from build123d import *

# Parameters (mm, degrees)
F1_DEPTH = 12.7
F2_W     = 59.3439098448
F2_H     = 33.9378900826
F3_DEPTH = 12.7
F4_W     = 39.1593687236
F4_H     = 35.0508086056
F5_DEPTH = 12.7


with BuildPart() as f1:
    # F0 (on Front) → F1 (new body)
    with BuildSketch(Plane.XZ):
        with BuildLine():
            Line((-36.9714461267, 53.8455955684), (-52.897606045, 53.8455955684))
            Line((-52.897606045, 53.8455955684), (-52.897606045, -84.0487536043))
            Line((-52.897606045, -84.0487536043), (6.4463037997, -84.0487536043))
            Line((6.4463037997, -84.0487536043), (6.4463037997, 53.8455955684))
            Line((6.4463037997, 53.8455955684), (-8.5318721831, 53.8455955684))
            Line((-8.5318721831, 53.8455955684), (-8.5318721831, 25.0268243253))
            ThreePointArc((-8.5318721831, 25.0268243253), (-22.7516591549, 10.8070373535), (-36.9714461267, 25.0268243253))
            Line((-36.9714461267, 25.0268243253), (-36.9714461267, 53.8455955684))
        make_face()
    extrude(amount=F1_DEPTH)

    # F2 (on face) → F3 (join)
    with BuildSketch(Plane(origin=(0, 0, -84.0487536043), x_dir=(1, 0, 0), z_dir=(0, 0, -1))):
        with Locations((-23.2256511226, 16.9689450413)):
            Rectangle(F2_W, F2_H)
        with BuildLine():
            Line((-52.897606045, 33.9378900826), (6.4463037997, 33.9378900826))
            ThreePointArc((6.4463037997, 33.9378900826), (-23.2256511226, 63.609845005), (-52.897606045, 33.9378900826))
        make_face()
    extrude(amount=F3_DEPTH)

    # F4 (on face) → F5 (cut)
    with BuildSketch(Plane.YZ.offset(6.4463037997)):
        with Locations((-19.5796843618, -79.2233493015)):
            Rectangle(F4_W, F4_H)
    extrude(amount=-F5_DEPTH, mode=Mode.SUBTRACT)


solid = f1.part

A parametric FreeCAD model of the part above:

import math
import FreeCAD as App
import Part
import Sketcher
from FreeCAD import Vector
Q = App.Units.Quantity

doc = App.newDocument("Part")
body = doc.addObject("PartDesign::Body", "Body")

# Sketch on XZ plane
sketch1 = body.newObject("Sketcher::SketchObject", "Sketch")
sketch1.AttachmentSupport = (doc.getObject("XZ_Plane"), [""])
sketch1.MapMode = "FlatFace"
sketch1.addGeometry(Part.LineSegment(Vector(-37, 54, 0), Vector(-53, 54, 0)), False)
sketch1.addGeometry(Part.LineSegment(Vector(-53, 54, 0), Vector(-53, -84, 0)), False)
sketch1.addGeometry(Part.LineSegment(Vector(-53, -84, 0), Vector(6, -84, 0)), False)
sketch1.addGeometry(Part.LineSegment(Vector(6, -84, 0), Vector(6, 54, 0)), False)
sketch1.addGeometry(Part.LineSegment(Vector(6, 54, 0), Vector(-9, 54, 0)), False)
sketch1.addGeometry(Part.LineSegment(Vector(-9, 54, 0), Vector(-9, 25, 0)), False)
sketch1.addGeometry(Part.ArcOfCircle(Part.Circle(Vector(-23, 25, 0), Vector(0, 0, 1), 14), math.radians(180), math.radians(360)), False)
sketch1.addGeometry(Part.LineSegment(Vector(-37, 25, 0), Vector(-37, 54, 0)), False)
sketch1.addConstraint(Sketcher.Constraint("Coincident", 0, 2, 1, 1))
sketch1.addConstraint(Sketcher.Constraint("Coincident", 1, 2, 2, 1))
sketch1.addConstraint(Sketcher.Constraint("Coincident", 2, 2, 3, 1))
sketch1.addConstraint(Sketcher.Constraint("Coincident", 3, 2, 4, 1))
sketch1.addConstraint(Sketcher.Constraint("Coincident", 4, 2, 5, 1))
sketch1.addConstraint(Sketcher.Constraint("Tangent", 5, 2, 6, 2))
sketch1.addConstraint(Sketcher.Constraint("Tangent", 6, 1, 7, 1))
sketch1.addConstraint(Sketcher.Constraint("Coincident", 7, 2, 0, 1))
sketch1.addConstraint(Sketcher.Constraint("Horizontal", 0))
sketch1.addConstraint(Sketcher.Constraint("Vertical", 1))
sketch1.addConstraint(Sketcher.Constraint("Horizontal", 2))
sketch1.addConstraint(Sketcher.Constraint("Vertical", 3))
sketch1.addConstraint(Sketcher.Constraint("Horizontal", 4))
sketch1.addConstraint(Sketcher.Constraint("Vertical", 5))
sketch1.addConstraint(Sketcher.Constraint("Vertical", 7))
sketch1.addConstraint(Sketcher.Constraint("Horizontal", 0, 2, 3, 2))
sketch1.addConstraint(Sketcher.Constraint("Radius", 6, 14.219787))
sketch1.addConstraint(Sketcher.Constraint("DistanceX", 0, 2, 0, 1, 15.92616))
sketch1.addConstraint(Sketcher.Constraint("DistanceX", 2, 1, 2, 2, 59.34391))
sketch1.addConstraint(Sketcher.Constraint("DistanceY", 1, 2, 1, 1, 137.894349))
sketch1.addConstraint(Sketcher.Constraint("DistanceY", 5, 2, 5, 1, 28.818771))
sketch1.addConstraint(Sketcher.Constraint("DistanceX", 6, 3, -1, 1, 22.751659))
sketch1.addConstraint(Sketcher.Constraint("DistanceY", -1, 1, 6, 3, 25.026824))
pad1 = body.newObject("PartDesign::Pad", "Pad")
pad1.Profile = sketch1
pad1.Length = Q("0.5 in")

# Sketch on XY plane
sketch2 = body.newObject("Sketcher::SketchObject", "Sketch001")
sketch2.AttachmentSupport = (doc.getObject("XY_Plane"), [""])
sketch2.MapMode = "FlatFace"
sketch2.AttachmentOffset = App.Placement(Vector(0, 0, -84.048754), App.Rotation())
sketch2.addGeometry(Part.LineSegment(Vector(-53, -34, 0), Vector(-53, 0, 0)), False)
sketch2.addGeometry(Part.LineSegment(Vector(-53, 0, 0), Vector(6, 0, 0)), False)
sketch2.addGeometry(Part.LineSegment(Vector(6, 0, 0), Vector(6, -34, 0)), False)
sketch2.addGeometry(Part.ArcOfCircle(Part.Circle(Vector(-23, -34, 0), Vector(0, 0, 1), 30), math.radians(180), math.radians(360)), False)
sketch2.addConstraint(Sketcher.Constraint("Coincident", 0, 2, 1, 1))
sketch2.addConstraint(Sketcher.Constraint("Coincident", 1, 2, 2, 1))
sketch2.addConstraint(Sketcher.Constraint("Tangent", 2, 2, 3, 2))
sketch2.addConstraint(Sketcher.Constraint("Tangent", 3, 1, 0, 1))
sketch2.addConstraint(Sketcher.Constraint("Vertical", 0))
sketch2.addConstraint(Sketcher.Constraint("Horizontal", 1))
sketch2.addConstraint(Sketcher.Constraint("Vertical", 2))
sketch2.addConstraint(Sketcher.Constraint("PointOnObject", 0, 2, -1))
sketch2.addConstraint(Sketcher.Constraint("Radius", 3, 29.671955))
sketch2.addConstraint(Sketcher.Constraint("DistanceY", 0, 1, 0, 2, 33.93789))
sketch2.addConstraint(Sketcher.Constraint("DistanceX", 3, 3, -1, 1, 23.225651))
pad2 = body.newObject("PartDesign::Pad", "Pad001")
pad2.Profile = sketch2
pad2.Length = Q("0.5 in")
pad2.Reversed = True

# Sketch on YZ plane
sketch3 = body.newObject("Sketcher::SketchObject", "Sketch002")
sketch3.AttachmentSupport = (doc.getObject("YZ_Plane"), [""])
sketch3.MapMode = "FlatFace"
sketch3.AttachmentOffset = App.Placement(Vector(0, 0, 6.446304), App.Rotation())
sketch3.addGeometry(Part.LineSegment(Vector(-39, -62, 0), Vector(-39, -97, 0)), False)
sketch3.addGeometry(Part.LineSegment(Vector(-39, -97, 0), Vector(0, -97, 0)), False)
sketch3.addGeometry(Part.LineSegment(Vector(0, -97, 0), Vector(0, -62, 0)), False)
sketch3.addGeometry(Part.LineSegment(Vector(0, -62, 0), Vector(-39, -62, 0)), False)
sketch3.addConstraint(Sketcher.Constraint("Coincident", 0, 2, 1, 1))
sketch3.addConstraint(Sketcher.Constraint("Coincident", 1, 2, 2, 1))
sketch3.addConstraint(Sketcher.Constraint("Coincident", 2, 2, 3, 1))
sketch3.addConstraint(Sketcher.Constraint("Coincident", 3, 2, 0, 1))
sketch3.addConstraint(Sketcher.Constraint("Vertical", 0))
sketch3.addConstraint(Sketcher.Constraint("Horizontal", 1))
sketch3.addConstraint(Sketcher.Constraint("Vertical", 2))
sketch3.addConstraint(Sketcher.Constraint("Horizontal", 3))
sketch3.addConstraint(Sketcher.Constraint("PointOnObject", 1, 2, -2))
sketch3.addConstraint(Sketcher.Constraint("DistanceX", 1, 1, 1, 2, 39.159369))
sketch3.addConstraint(Sketcher.Constraint("DistanceY", 0, 2, 0, 1, 35.050809))
sketch3.addConstraint(Sketcher.Constraint("DistanceY", 0, 2, -1, 1, 96.748754))
pocket1 = body.newObject("PartDesign::Pocket", "Pocket")
pocket1.Profile = sketch3
pocket1.Length = Q("0.5 in")

doc.recompute()
